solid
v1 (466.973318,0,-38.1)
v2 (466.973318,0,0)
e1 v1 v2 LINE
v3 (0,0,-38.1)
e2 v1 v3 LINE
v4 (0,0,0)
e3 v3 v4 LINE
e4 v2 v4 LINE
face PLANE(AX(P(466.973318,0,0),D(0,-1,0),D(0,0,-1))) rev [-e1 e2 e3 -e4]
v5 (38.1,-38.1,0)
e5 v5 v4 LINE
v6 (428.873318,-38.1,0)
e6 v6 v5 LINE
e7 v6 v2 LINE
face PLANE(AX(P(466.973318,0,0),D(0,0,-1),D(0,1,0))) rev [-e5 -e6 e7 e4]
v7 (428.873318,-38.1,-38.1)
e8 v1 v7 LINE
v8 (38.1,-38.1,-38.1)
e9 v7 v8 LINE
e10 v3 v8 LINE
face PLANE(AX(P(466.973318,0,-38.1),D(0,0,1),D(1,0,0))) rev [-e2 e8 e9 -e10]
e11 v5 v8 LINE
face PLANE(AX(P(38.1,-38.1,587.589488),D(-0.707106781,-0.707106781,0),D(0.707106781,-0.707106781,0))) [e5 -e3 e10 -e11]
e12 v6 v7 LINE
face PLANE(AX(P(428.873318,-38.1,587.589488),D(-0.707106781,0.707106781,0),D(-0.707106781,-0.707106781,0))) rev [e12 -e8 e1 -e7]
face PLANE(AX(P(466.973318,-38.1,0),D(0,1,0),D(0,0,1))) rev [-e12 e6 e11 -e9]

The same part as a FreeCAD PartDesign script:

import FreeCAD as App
import Part
import Sketcher

V = App.Vector
Q = App.Units.Quantity

doc = App.newDocument("Part")
body = doc.addObject("PartDesign::Body", "Body")

sketch1 = body.newObject("Sketcher::SketchObject", "Sketch")
sketch1.AttachmentSupport = (doc.getObject("YZ_Plane"), [""])
sketch1.MapMode = "FlatFace"
sketch1.addGeometry(Part.LineSegment(V(0, 0, 0), V(-38, 0, 0)), False)
sketch1.addGeometry(Part.LineSegment(V(-38, 0, 0), V(-38, -38, 0)), False)
sketch1.addGeometry(Part.LineSegment(V(-38, -38, 0), V(0, -38, 0)), False)
sketch1.addGeometry(Part.LineSegment(V(0, -38, 0), V(0, 0, 0)), False)
sketch1.addConstraint(Sketcher.Constraint("Coincident", 0, 2, 1, 1))
sketch1.addConstraint(Sketcher.Constraint("Coincident", 1, 2, 2, 1))
sketch1.addConstraint(Sketcher.Constraint("Coincident", 2, 2, 3, 1))
sketch1.addConstraint(Sketcher.Constraint("Coincident", 3, 2, 0, 1))
sketch1.addConstraint(Sketcher.Constraint("Horizontal", 0))
sketch1.addConstraint(Sketcher.Constraint("Vertical", 1))
sketch1.addConstraint(Sketcher.Constraint("Horizontal", 2))
sketch1.addConstraint(Sketcher.Constraint("Vertical", 3))
sketch1.addConstraint(Sketcher.Constraint("Coincident", 3, 2, -1, 1))
sketch1.addConstraint(Sketcher.Constraint("Equal", 2, 1))
sketch1.addConstraint(Sketcher.Constraint("DistanceX", 0, 2, 0, 1, Q("1.5 in")))
pad1 = body.newObject("PartDesign::Pad", "Pad")
pad1.Profile = sketch1
pad1.Length = 466.973318

sketch2 = body.newObject("Sketcher::SketchObject", "Sketch001")
sketch2.AttachmentSupport = (doc.getObject("XY_Plane"), [""])
sketch2.MapMode = "FlatFace"
sketch2.addGeometry(Part.LineSegment(V(-947, -38, 0), V(38, -38, 0)), False)
sketch2.addGeometry(Part.LineSegment(V(38, -38, 0), V(-670, 670, 0)), False)
sketch2.addGeometry(Part.LineSegment(V(-670, 670, 0), V(-2433, 1361, 0)), False)
sketch2.addGeometry(Part.LineSegment(V(-2433, 1361, 0), V(-2711, 653, 0)), False)
sketch2.addGeometry(Part.LineSegment(V(-2711, 653, 0), V(-947, -38, 0)), False)
sketch2.addConstraint(Sketcher.Constraint("Coincident", 0, 2, 1, 1))
sketch2.addConstraint(Sketcher.Constraint("Coincident", 1, 2, 2, 1))
sketch2.addConstraint(Sketcher.Constraint("Coincident", 2, 2, 3, 1))
sketch2.addConstraint(Sketcher.Constraint("Coincident", 3, 2, 4, 1))
sketch2.addConstraint(Sketcher.Constraint("Coincident", 4, 2, 0, 1))
sketch2.addConstraint(Sketcher.Constraint("Horizontal", 0))
sketch2.addConstraint(Sketcher.Constraint("Perpendicular", 2, 3))
sketch2.addConstraint(Sketcher.Constraint("Perpendicular", 3, 4))
sketch2.addConstraint(Sketcher.Constraint("Equal", 2, 4))
sketch2.addConstraint(Sketcher.Constraint("Angle", 1, Q("135 deg")))
sketch2.addConstraint(Sketcher.Constraint("DistanceX", -1, 1, 0, 2, Q("1.5 in")))
sketch2.addConstraint(Sketcher.Constraint("DistanceY", 0, 2, -1, 1, Q("1.5 in")))
sketch2.addConstraint(Sketcher.Constraint("DistanceX", 0, 1, 0, 2, 985.150031))
sketch2.addConstraint(Sketcher.Constraint("DistanceX", 1, 2, -1, 1, 669.665499))
sketch2.addConstraint(Sketcher.Constraint("DistanceX", 2, 2, -1, 1, 2433.166301))
pocket1 = body.newObject("PartDesign::Pocket", "Pocket")
pocket1.Profile = sketch2
pocket1.Type = "ThroughAll"
pocket1.Midplane = True

sketch3 = body.newObject("Sketcher::SketchObject", "Sketch002")
sketch3.AttachmentSupport = (doc.getObject("XY_Plane"), [""])
sketch3.MapMode = "FlatFace"
sketch3.addGeometry(Part.LineSegment(V(429, -38, 0), V(1414, -38, 0)), False)
sketch3.addGeometry(Part.LineSegment(V(1414, -38, 0), V(3178, 653, 0)), False)
sketch3.addGeometry(Part.LineSegment(V(3178, 653, 0), V(2900, 1361, 0)), False)
sketch3.addGeometry(Part.LineSegment(V(2900, 1361, 0), V(1137, 670, 0)), False)
sketch3.addGeometry(Part.LineSegment(V(1137, 670, 0), V(429, -38, 0)), False)
sketch3.addConstraint(Sketcher.Constraint("Coincident", 0, 2, 1, 1))
sketch3.addConstraint(Sketcher.Constraint("Coincident", 1, 2, 2, 1))
sketch3.addConstraint(Sketcher.Constraint("Coincident", 2, 2, 3, 1))
sketch3.addConstraint(Sketcher.Constraint("Coincident", 3, 2, 4, 1))
sketch3.addConstraint(Sketcher.Constraint("Coincident", 4, 2, 0, 1))
sketch3.addConstraint(Sketcher.Constraint("Horizontal", 0))
sketch3.addConstraint(Sketcher.Constraint("Perpendicular", 1, 2))
sketch3.addConstraint(Sketcher.Constraint("Perpendicular", 2, 3))
sketch3.addConstraint(Sketcher.Constraint("Equal", 1, 3))
sketch3.addConstraint(Sketcher.Constraint("Angle", 4, Q("-135 deg")))
sketch3.addConstraint(Sketcher.Constraint("DistanceY", 0, 2, -1, 1, Q("1.5 in")))
sketch3.addConstraint(Sketcher.Constraint("DistanceX", 0, 1, 0, 2, 985.150031))
sketch3.addConstraint(Sketcher.Constraint("DistanceY", -1, 1, 3, 2, 669.665499))
sketch3.addConstraint(Sketcher.Constraint("DistanceX", 4, 2, 2, 2, 2471.266301))
sketch3.addConstraint(Sketcher.Constraint("DistanceX", -1, 1, 0, 2, 1414.023349))
pocket2 = body.newObject("PartDesign::Pocket", "Pocket001")
pocket2.Profile = sketch3
pocket2.Type = "ThroughAll"
pocket2.Midplane = True

doc.recompute()
